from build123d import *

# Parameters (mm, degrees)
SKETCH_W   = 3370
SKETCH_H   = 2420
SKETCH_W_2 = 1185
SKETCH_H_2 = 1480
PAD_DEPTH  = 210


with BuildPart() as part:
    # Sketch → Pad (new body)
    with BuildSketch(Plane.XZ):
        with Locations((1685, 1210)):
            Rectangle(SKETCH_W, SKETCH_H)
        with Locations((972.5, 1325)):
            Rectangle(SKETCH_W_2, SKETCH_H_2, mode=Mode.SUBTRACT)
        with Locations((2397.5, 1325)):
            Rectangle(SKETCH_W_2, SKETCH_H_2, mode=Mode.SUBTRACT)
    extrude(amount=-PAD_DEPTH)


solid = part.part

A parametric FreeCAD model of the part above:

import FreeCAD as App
import Part
import Sketcher

V = App.Vector


def add_polygon(sketch, points):
    """Adds a closed chain of lines whose ends are joined by coincident constraints."""
    first, n = sketch.GeometryCount, len(points)
    for a, b in zip(points, points[1:] + points[:1]):
        sketch.addGeometry(Part.LineSegment(App.Vector(*a, 0), App.Vector(*b, 0)), False)
    for i in range(n):
        sketch.addConstraint(Sketcher.Constraint("Coincident", first + i, 2, first + (i + 1) % n, 1))

doc = App.newDocument("Part")
body = doc.addObject("PartDesign::Body", "Body")

sketch1 = body.newObject("Sketcher::SketchObject", "Sketch")
sketch1.AttachmentSupport = (doc.getObject("XZ_Plane"), [""])
sketch1.MapMode = "FlatFace"
add_polygon(sketch1, [(0, 2420), (0, 0), (3370, 0), (3370, 2420)])
add_polygon(sketch1, [(1565, 585), (380, 585), (380, 2065), (1565, 2065)])
add_polygon(sketch1, [(2990, 585), (1805, 585), (1805, 2065), (2990, 2065)])
sketch1.addConstraint([
    Sketcher.Constraint("Vertical", 0),
    Sketcher.Constraint("Horizontal", 1),
    Sketcher.Constraint("Vertical", 2),
    Sketcher.Constraint("Horizontal", 3),
    Sketcher.Constraint("Horizontal", 4),
    Sketcher.Constraint("Vertical", 5),
    Sketcher.Constraint("Horizontal", 6),
    Sketcher.Constraint("Vertical", 7),
    Sketcher.Constraint("Horizontal", 8),
    Sketcher.Constraint("Vertical", 9),
    Sketcher.Constraint("Horizontal", 10),
    Sketcher.Constraint("Vertical", 11),
    Sketcher.Constraint("Coincident", 0, 2, -1, 1),
    Sketcher.Constraint("Horizontal", 7, 2, 8, 2),
    Sketcher.Constraint("Horizontal", 6, 2, 9, 2),
    Sketcher.Constraint("Equal", 6, 8),
    Sketcher.Constraint("DistanceX", 1, 1, 1, 2, 3370.0),
    Sketcher.Constraint("DistanceX", 4, 2, 4, 1, 1185.0),
    Sketcher.Constraint("DistanceY", 0, 2, 0, 1, 2420.0),
    Sketcher.Constraint("DistanceY", 5, 1, 5, 2, 1480.0),
    Sketcher.Constraint("DistanceX", -1, 1, 4, 2, 380.0),
    Sketcher.Constraint("DistanceY", -1, 1, 4, 2, 585.0),
    Sketcher.Constraint("DistanceX", -1, 1, 8, 2, 1805.0),
])
pad1 = body.newObject("PartDesign::Pad", "Pad")
pad1.Profile = sketch1
pad1.Length = 210
pad1.Reversed = True

doc.recompute()
